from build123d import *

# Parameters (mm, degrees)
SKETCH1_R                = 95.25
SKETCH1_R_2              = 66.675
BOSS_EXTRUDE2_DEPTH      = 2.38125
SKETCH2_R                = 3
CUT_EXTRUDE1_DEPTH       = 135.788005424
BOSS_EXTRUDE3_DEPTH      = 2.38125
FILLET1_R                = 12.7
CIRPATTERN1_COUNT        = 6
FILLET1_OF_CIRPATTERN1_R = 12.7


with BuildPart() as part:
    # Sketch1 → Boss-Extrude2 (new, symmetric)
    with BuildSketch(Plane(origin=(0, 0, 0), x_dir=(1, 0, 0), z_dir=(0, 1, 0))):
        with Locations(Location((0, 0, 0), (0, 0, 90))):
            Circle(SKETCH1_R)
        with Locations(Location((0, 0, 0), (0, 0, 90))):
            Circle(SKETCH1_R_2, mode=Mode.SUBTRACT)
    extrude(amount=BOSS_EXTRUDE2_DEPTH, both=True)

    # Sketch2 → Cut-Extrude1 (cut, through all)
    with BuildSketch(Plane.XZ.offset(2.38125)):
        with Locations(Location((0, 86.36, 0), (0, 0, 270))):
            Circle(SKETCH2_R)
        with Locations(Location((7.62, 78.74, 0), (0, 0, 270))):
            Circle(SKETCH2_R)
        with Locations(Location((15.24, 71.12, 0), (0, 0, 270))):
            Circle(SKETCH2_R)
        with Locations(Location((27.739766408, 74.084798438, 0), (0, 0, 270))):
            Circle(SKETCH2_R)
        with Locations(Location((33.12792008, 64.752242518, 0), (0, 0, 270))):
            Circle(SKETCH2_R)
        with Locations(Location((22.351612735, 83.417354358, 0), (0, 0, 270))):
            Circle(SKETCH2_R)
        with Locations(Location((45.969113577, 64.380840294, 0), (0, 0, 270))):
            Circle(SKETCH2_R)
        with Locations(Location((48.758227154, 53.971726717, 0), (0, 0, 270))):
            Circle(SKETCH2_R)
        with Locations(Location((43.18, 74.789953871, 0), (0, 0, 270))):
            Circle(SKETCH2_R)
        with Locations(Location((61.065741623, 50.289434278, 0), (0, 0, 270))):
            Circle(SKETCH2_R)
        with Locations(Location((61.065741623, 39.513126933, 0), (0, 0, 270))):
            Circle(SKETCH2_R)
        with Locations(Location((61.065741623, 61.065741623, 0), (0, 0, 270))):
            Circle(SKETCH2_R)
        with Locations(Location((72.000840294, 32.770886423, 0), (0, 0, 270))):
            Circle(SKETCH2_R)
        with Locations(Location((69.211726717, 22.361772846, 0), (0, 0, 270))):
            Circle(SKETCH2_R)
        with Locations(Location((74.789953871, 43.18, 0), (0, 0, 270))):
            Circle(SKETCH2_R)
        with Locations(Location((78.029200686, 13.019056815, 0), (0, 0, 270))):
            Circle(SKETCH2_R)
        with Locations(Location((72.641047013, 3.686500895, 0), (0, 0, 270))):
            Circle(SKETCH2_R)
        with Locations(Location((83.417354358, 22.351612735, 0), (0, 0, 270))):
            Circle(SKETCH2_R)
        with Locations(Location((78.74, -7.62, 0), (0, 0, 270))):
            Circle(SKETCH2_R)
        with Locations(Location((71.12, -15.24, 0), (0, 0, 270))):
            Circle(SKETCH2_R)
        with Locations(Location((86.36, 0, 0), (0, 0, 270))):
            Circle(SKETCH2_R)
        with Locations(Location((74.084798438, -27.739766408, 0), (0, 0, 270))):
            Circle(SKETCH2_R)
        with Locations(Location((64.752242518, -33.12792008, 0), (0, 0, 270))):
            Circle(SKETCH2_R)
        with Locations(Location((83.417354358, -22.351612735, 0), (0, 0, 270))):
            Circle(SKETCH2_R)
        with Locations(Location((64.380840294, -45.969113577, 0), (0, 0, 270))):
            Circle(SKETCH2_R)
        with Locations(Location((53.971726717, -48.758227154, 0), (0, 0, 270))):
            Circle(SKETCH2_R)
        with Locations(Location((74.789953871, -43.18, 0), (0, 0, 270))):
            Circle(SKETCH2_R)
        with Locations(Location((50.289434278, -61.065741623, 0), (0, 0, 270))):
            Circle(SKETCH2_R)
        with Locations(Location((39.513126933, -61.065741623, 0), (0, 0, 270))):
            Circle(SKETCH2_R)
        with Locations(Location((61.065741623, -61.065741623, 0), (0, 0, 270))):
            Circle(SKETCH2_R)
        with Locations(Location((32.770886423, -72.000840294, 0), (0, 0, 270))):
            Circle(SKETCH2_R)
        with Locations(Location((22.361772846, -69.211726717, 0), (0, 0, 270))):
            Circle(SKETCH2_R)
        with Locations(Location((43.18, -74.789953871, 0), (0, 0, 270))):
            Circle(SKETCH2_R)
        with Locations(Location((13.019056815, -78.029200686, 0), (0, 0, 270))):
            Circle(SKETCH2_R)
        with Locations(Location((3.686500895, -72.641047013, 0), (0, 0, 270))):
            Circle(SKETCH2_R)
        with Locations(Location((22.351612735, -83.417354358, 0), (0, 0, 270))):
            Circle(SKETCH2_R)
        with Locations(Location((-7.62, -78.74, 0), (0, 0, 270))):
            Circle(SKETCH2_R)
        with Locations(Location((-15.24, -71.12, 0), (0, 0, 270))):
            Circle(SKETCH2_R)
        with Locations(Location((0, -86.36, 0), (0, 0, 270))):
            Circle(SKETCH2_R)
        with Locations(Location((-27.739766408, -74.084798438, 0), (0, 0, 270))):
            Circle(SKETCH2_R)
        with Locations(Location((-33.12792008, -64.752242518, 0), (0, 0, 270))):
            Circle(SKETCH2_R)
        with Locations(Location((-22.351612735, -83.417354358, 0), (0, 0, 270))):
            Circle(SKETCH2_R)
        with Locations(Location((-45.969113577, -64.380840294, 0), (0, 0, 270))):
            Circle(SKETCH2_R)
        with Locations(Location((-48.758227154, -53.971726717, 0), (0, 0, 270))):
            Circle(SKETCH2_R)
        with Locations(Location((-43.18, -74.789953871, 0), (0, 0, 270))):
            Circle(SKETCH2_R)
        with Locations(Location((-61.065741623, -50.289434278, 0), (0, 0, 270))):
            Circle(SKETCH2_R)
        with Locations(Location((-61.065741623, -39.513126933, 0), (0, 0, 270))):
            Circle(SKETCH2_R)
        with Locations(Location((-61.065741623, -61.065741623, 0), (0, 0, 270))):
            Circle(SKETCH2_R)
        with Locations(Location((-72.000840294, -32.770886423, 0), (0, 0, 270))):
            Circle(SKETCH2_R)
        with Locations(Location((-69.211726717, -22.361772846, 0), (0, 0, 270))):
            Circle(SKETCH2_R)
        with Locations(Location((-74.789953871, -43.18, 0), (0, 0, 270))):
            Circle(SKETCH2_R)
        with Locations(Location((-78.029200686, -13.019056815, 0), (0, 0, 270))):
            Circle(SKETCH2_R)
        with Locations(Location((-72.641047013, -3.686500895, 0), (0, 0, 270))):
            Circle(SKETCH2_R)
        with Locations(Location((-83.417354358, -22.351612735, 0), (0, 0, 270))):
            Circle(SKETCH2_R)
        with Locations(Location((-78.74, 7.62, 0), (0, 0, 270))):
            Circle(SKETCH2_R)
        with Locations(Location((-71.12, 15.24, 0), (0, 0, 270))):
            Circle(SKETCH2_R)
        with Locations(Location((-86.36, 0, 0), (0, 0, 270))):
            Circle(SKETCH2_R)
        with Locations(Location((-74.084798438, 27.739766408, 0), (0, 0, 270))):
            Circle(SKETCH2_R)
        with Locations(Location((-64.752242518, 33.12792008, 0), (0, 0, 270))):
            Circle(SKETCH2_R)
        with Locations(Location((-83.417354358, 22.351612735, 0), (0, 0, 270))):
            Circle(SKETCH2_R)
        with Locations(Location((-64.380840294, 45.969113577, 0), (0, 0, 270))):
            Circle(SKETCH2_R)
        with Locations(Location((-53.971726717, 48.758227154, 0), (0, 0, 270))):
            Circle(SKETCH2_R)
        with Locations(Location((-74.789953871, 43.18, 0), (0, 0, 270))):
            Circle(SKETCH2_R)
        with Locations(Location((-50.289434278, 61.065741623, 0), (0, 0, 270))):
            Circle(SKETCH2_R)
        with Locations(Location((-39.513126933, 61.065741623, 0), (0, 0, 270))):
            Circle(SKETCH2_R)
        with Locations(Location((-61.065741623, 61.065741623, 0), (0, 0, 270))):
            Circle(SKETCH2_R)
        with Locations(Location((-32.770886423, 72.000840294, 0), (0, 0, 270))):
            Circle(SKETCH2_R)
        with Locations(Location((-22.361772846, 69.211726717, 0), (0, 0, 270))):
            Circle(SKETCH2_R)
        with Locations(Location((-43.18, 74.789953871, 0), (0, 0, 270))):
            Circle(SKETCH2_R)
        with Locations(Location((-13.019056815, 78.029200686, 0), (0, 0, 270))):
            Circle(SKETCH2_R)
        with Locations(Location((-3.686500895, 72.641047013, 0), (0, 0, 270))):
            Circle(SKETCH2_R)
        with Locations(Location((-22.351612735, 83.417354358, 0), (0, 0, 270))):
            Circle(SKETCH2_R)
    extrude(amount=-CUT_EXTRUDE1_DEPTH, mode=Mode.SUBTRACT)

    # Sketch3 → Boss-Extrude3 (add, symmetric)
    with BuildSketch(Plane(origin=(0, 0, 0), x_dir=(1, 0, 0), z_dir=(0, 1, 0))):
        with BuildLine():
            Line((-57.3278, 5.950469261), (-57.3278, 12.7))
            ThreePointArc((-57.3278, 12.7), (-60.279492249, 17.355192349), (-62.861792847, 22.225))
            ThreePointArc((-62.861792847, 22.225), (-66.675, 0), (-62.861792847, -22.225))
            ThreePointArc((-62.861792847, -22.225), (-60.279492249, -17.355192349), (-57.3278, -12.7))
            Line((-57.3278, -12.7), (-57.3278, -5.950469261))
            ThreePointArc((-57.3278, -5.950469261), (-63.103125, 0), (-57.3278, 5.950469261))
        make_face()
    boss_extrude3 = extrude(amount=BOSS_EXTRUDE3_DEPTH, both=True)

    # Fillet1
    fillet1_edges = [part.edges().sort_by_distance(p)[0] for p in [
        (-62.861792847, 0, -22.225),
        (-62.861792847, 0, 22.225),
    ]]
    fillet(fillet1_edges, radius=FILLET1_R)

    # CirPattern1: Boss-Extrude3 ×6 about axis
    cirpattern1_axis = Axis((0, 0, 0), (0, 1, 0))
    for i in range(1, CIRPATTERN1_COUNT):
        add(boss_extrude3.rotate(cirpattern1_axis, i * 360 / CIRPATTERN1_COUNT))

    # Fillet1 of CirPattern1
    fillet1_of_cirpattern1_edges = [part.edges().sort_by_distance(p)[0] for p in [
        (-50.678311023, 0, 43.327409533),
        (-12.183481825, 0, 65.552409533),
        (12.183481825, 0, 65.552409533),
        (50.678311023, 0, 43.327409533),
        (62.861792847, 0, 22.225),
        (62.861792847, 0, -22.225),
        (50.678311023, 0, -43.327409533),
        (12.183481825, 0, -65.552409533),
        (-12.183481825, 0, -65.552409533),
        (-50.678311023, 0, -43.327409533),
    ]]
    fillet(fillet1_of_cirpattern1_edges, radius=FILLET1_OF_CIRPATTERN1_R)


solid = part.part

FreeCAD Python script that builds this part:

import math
import FreeCAD as App
import Part
import Sketcher

V = App.Vector
Q = App.Units.Quantity


def edges_at(feature, points):
    """Names of the edges that pass closest to the given points."""
    edges = feature.Shape.Edges
    near = lambda p: min(range(len(edges)), key=lambda i: edges[i].distToShape(Part.Vertex(*p))[0])
    return sorted({f"Edge{near(p) + 1}" for p in points})

doc = App.newDocument("Part")
body = doc.addObject("PartDesign::Body", "Body")

sketch1 = doc.addObject("Sketcher::SketchObject", "Sketch")
body.addObject(sketch1)
sketch1.AttachmentSupport = (doc.XZ_Plane, [""])
sketch1.MapMode = "FlatFace"
sketch1.addGeometry([
    Part.Circle(V(0, 0, 0), V(0, 0, 1), 95.25),
    Part.Circle(V(0, 0, 0), V(0, 0, 1), 66.675),
], False)
sketch1.addConstraint([
    Sketcher.Constraint("Coincident", 0, 3, -1, 1),
    Sketcher.Constraint("Coincident", 1, 3, -1, 1),
    Sketcher.Constraint("Diameter", 0, Q("7.5 in")),
    Sketcher.Constraint("Diameter", 1, Q("5.25 in")),
])
pad1 = doc.addObject("PartDesign::Pad", "Pad")
body.addObject(pad1)
pad1.Profile = sketch1
pad1.Length = Q("0.1875 in")
pad1.Midplane = True

sketch2 = doc.addObject("Sketcher::SketchObject", "Sketch001")
body.addObject(sketch2)
sketch2.AttachmentSupport = (doc.XZ_Plane, [""])
sketch2.MapMode = "FlatFace"
sketch2.AttachmentOffset = App.Placement(V(0, 0, 0.09375 * 25.4), App.Rotation())
sketch2.addGeometry([
    Part.Circle(V(0, 86.36, 0), V(0, 0, 1), 3),
    Part.Circle(V(7.62, 78.74, 0), V(0, 0, 1), 3),
    Part.Circle(V(15.24, 71.12, 0), V(0, 0, 1), 3),
    Part.Circle(V(27.739766, 74.084798, 0), V(0, 0, 1), 3),
    Part.Circle(V(33.12792, 64.752243, 0), V(0, 0, 1), 3),
    Part.Circle(V(22.351613, 83.417354, 0), V(0, 0, 1), 3),
    Part.Circle(V(45.969114, 64.38084, 0), V(0, 0, 1), 3),
    Part.Circle(V(48.758227, 53.971727, 0), V(0, 0, 1), 3),
    Part.Circle(V(43.18, 74.789954, 0), V(0, 0, 1), 3),
    Part.Circle(V(61.065742, 50.289434, 0), V(0, 0, 1), 3),
    Part.Circle(V(61.065742, 39.513127, 0), V(0, 0, 1), 3),
    Part.Circle(V(61.065742, 61.065742, 0), V(0, 0, 1), 3),
    Part.Circle(V(72.00084, 32.770886, 0), V(0, 0, 1), 3),
    Part.Circle(V(69.211727, 22.361773, 0), V(0, 0, 1), 3),
    Part.Circle(V(74.789954, 43.18, 0), V(0, 0, 1), 3),
    Part.Circle(V(78.029201, 13.019057, 0), V(0, 0, 1), 3),
    Part.Circle(V(72.641047, 3.686501, 0), V(0, 0, 1), 3),
    Part.Circle(V(83.417354, 22.351613, 0), V(0, 0, 1), 3),
    Part.Circle(V(78.74, -7.62, 0), V(0, 0, 1), 3),
    Part.Circle(V(71.12, -15.24, 0), V(0, 0, 1), 3),
    Part.Circle(V(86.36, 0, 0), V(0, 0, 1), 3),
    Part.Circle(V(74.084798, -27.739766, 0), V(0, 0, 1), 3),
    Part.Circle(V(64.752243, -33.12792, 0), V(0, 0, 1), 3),
    Part.Circle(V(83.417354, -22.351613, 0), V(0, 0, 1), 3),
    Part.Circle(V(64.38084, -45.969114, 0), V(0, 0, 1), 3),
    Part.Circle(V(53.971727, -48.758227, 0), V(0, 0, 1), 3),
    Part.Circle(V(74.789954, -43.18, 0), V(0, 0, 1), 3),
    Part.Circle(V(50.289434, -61.065742, 0), V(0, 0, 1), 3),
    Part.Circle(V(39.513127, -61.065742, 0), V(0, 0, 1), 3),
    Part.Circle(V(61.065742, -61.065742, 0), V(0, 0, 1), 3),
    Part.Circle(V(32.770886, -72.00084, 0), V(0, 0, 1), 3),
    Part.Circle(V(22.361773, -69.211727, 0), V(0, 0, 1), 3),
    Part.Circle(V(43.18, -74.789954, 0), V(0, 0, 1), 3),
    Part.Circle(V(13.019057, -78.029201, 0), V(0, 0, 1), 3),
    Part.Circle(V(3.686501, -72.641047, 0), V(0, 0, 1), 3),
    Part.Circle(V(22.351613, -83.417354, 0), V(0, 0, 1), 3),
    Part.Circle(V(-7.62, -78.74, 0), V(0, 0, 1), 3),
    Part.Circle(V(-15.24, -71.12, 0), V(0, 0, 1), 3),
    Part.Circle(V(0, -86.36, 0), V(0, 0, 1), 3),
    Part.Circle(V(-27.739766, -74.084798, 0), V(0, 0, 1), 3),
    Part.Circle(V(-33.12792, -64.752243, 0), V(0, 0, 1), 3),
    Part.Circle(V(-22.351613, -83.417354, 0), V(0, 0, 1), 3),
    Part.Circle(V(-45.969114, -64.38084, 0), V(0, 0, 1), 3),
    Part.Circle(V(-48.758227, -53.971727, 0), V(0, 0, 1), 3),
    Part.Circle(V(-43.18, -74.789954, 0), V(0, 0, 1), 3),
    Part.Circle(V(-61.065742, -50.289434, 0), V(0, 0, 1), 3),
    Part.Circle(V(-61.065742, -39.513127, 0), V(0, 0, 1), 3),
    Part.Circle(V(-61.065742, -61.065742, 0), V(0, 0, 1), 3),
    Part.Circle(V(-72.00084, -32.770886, 0), V(0, 0, 1), 3),
    Part.Circle(V(-69.211727, -22.361773, 0), V(0, 0, 1), 3),
    Part.Circle(V(-74.789954, -43.18, 0), V(0, 0, 1), 3),
    Part.Circle(V(-78.029201, -13.019057, 0), V(0, 0, 1), 3),
    Part.Circle(V(-72.641047, -3.686501, 0), V(0, 0, 1), 3),
    Part.Circle(V(-83.417354, -22.351613, 0), V(0, 0, 1), 3),
    Part.Circle(V(-78.74, 7.62, 0), V(0, 0, 1), 3),
    Part.Circle(V(-71.12, 15.24, 0), V(0, 0, 1), 3),
    Part.Circle(V(-86.36, 0, 0), V(0, 0, 1), 3),
    Part.Circle(V(-74.084798, 27.739766, 0), V(0, 0, 1), 3),
    Part.Circle(V(-64.752243, 33.12792, 0), V(0, 0, 1), 3),
    Part.Circle(V(-83.417354, 22.351613, 0), V(0, 0, 1), 3),
    Part.Circle(V(-64.38084, 45.969114, 0), V(0, 0, 1), 3),
    Part.Circle(V(-53.971727, 48.758227, 0), V(0, 0, 1), 3),
    Part.Circle(V(-74.789954, 43.18, 0), V(0, 0, 1), 3),
    Part.Circle(V(-50.289434, 61.065742, 0), V(0, 0, 1), 3),
    Part.Circle(V(-39.513127, 61.065742, 0), V(0, 0, 1), 3),
    Part.Circle(V(-61.065742, 61.065742, 0), V(0, 0, 1), 3),
    Part.Circle(V(-32.770886, 72.00084, 0), V(0, 0, 1), 3),
    Part.Circle(V(-22.361773, 69.211727, 0), V(0, 0, 1), 3),
    Part.Circle(V(-43.18, 74.789954, 0), V(0, 0, 1), 3),
    Part.Circle(V(-13.019057, 78.029201, 0), V(0, 0, 1), 3),
    Part.Circle(V(-3.686501, 72.641047, 0), V(0, 0, 1), 3),
    Part.Circle(V(-22.351613, 83.417354, 0), V(0, 0, 1), 3),
], False)
sketch2.addConstraint([
    Sketcher.Constraint("Equal", 0, 1),
    Sketcher.Constraint("Equal", 1, 2),
    Sketcher.Constraint("Equal", 2, 3),
    Sketcher.Constraint("Equal", 3, 4),
    Sketcher.Constraint("Equal", 4, 5),
    Sketcher.Constraint("Equal", 5, 6),
    Sketcher.Constraint("Equal", 6, 7),
    Sketcher.Constraint("Equal", 7, 8),
    Sketcher.Constraint("Equal", 8, 9),
    Sketcher.Constraint("Equal", 9, 10),
    Sketcher.Constraint("Equal", 10, 11),
    Sketcher.Constraint("Equal", 11, 12),
    Sketcher.Constraint("Equal", 12, 13),
    Sketcher.Constraint("Equal", 13, 14),
    Sketcher.Constraint("Equal", 14, 15),
    Sketcher.Constraint("Equal", 15, 16),
    Sketcher.Constraint("Equal", 16, 17),
    Sketcher.Constraint("Equal", 17, 18),
    Sketcher.Constraint("Equal", 18, 19),
    Sketcher.Constraint("Equal", 19, 20),
    Sketcher.Constraint("Equal", 20, 21),
    Sketcher.Constraint("Equal", 21, 22),
    Sketcher.Constraint("Equal", 22, 23),
    Sketcher.Constraint("Equal", 23, 24),
    Sketcher.Constraint("Equal", 24, 25),
    Sketcher.Constraint("Equal", 25, 26),
    Sketcher.Constraint("Equal", 26, 27),
    Sketcher.Constraint("Equal", 27, 28),
    Sketcher.Constraint("Equal", 28, 29),
    Sketcher.Constraint("Equal", 29, 30),
    Sketcher.Constraint("Equal", 30, 31),
    Sketcher.Constraint("Equal", 31, 32),
    Sketcher.Constraint("Equal", 32, 33),
    Sketcher.Constraint("Equal", 33, 34),
    Sketcher.Constraint("Equal", 34, 35),
    Sketcher.Constraint("Equal", 35, 36),
    Sketcher.Constraint("Equal", 36, 37),
    Sketcher.Constraint("Equal", 37, 38),
    Sketcher.Constraint("Equal", 38, 39),
    Sketcher.Constraint("Equal", 39, 40),
    Sketcher.Constraint("Equal", 40, 41),
    Sketcher.Constraint("Equal", 41, 42),
    Sketcher.Constraint("Equal", 42, 43),
    Sketcher.Constraint("Equal", 43, 44),
    Sketcher.Constraint("Equal", 44, 45),
    Sketcher.Constraint("Equal", 45, 46),
    Sketcher.Constraint("Equal", 46, 47),
    Sketcher.Constraint("Equal", 47, 48),
    Sketcher.Constraint("Equal", 48, 49),
    Sketcher.Constraint("Equal", 49, 50),
    Sketcher.Constraint("Equal", 50, 51),
    Sketcher.Constraint("Equal", 51, 52),
    Sketcher.Constraint("Equal", 52, 53),
    Sketcher.Constraint("Equal", 53, 54),
    Sketcher.Constraint("Equal", 54, 55),
    Sketcher.Constraint("Equal", 55, 56),
    Sketcher.Constraint("Equal", 56, 57),
    Sketcher.Constraint("Equal", 57, 58),
    Sketcher.Constraint("Equal", 58, 59),
    Sketcher.Constraint("Equal", 59, 60),
    Sketcher.Constraint("Equal", 60, 61),
    Sketcher.Constraint("Equal", 61, 62),
    Sketcher.Constraint("Equal", 62, 63),
    Sketcher.Constraint("Equal", 63, 64),
    Sketcher.Constraint("Equal", 64, 65),
    Sketcher.Constraint("Equal", 65, 66),
    Sketcher.Constraint("Equal", 66, 67),
    Sketcher.Constraint("Equal", 67, 68),
    Sketcher.Constraint("Equal", 68, 69),
    Sketcher.Constraint("Equal", 69, 70),
    Sketcher.Constraint("Equal", 70, 71),
    Sketcher.Constraint("Symmetric", 1, 3, 36, 3, -1, 1),
    Sketcher.Constraint("Symmetric", 2, 3, 37, 3, -1, 1),
    Sketcher.Constraint("Symmetric", 0, 3, 38, 3, -1, 1),
    Sketcher.Constraint("Symmetric", 3, 3, 39, 3, -1, 1),
    Sketcher.Constraint("Symmetric", 4, 3, 40, 3, -1, 1),
    Sketcher.Constraint("Symmetric", 5, 3, 41, 3, -1, 1),
    Sketcher.Constraint("Symmetric", 6, 3, 42, 3, -1, 1),
    Sketcher.Constraint("Symmetric", 7, 3, 43, 3, -1, 1),
    Sketcher.Constraint("Symmetric", 8, 3, 44, 3, -1, 1),
    Sketcher.Constraint("Symmetric", 9, 3, 45, 3, -1, 1),
    Sketcher.Constraint("Symmetric", 10, 3, 46, 3, -1, 1),
    Sketcher.Constraint("Symmetric", 11, 3, 47, 3, -1, 1),
    Sketcher.Constraint("Symmetric", 12, 3, 48, 3, -1, 1),
    Sketcher.Constraint("Symmetric", 13, 3, 49, 3, -1, 1),
    Sketcher.Constraint("Symmetric", 14, 3, 50, 3, -1, 1),
    Sketcher.Constraint("Symmetric", 15, 3, 51, 3, -1, 1),
    Sketcher.Constraint("Symmetric", 16, 3, 52, 3, -1, 1),
    Sketcher.Constraint("Symmetric", 17, 3, 53, 3, -1, 1),
    Sketcher.Constraint("Symmetric", 18, 3, 54, 3, -1, 1),
    Sketcher.Constraint("Symmetric", 19, 3, 55, 3, -1, 1),
    Sketcher.Constraint("Symmetric", 20, 3, 56, 3, -1, 1),
    Sketcher.Constraint("Symmetric", 21, 3, 57, 3, -1, 1),
    Sketcher.Constraint("Symmetric", 22, 3, 58, 3, -1, 1),
    Sketcher.Constraint("Symmetric", 23, 3, 59, 3, -1, 1),
    Sketcher.Constraint("Symmetric", 24, 3, 60, 3, -1, 1),
    Sketcher.Constraint("Symmetric", 25, 3, 61, 3, -1, 1),
    Sketcher.Constraint("Symmetric", 26, 3, 62, 3, -1, 1),
    Sketcher.Constraint("Symmetric", 27, 3, 63, 3, -1, 1),
    Sketcher.Constraint("Symmetric", 28, 3, 64, 3, -1, 1),
    Sketcher.Constraint("Symmetric", 29, 3, 65, 3, -1, 1),
    Sketcher.Constraint("Symmetric", 30, 3, 66, 3, -1, 1),
    Sketcher.Constraint("Symmetric", 31, 3, 67, 3, -1, 1),
    Sketcher.Constraint("Symmetric", 32, 3, 68, 3, -1, 1),
    Sketcher.Constraint("Symmetric", 33, 3, 69, 3, -1, 1),
    Sketcher.Constraint("Symmetric", 34, 3, 70, 3, -1, 1),
    Sketcher.Constraint("Symmetric", 35, 3, 71, 3, -1, 1),
    Sketcher.Constraint("Symmetric", 35, 3, 41, 3, -2),
    Sketcher.Constraint("Symmetric", 32, 3, 44, 3, -2),
    Sketcher.Constraint("Symmetric", 29, 3, 47, 3, -2),
    Sketcher.Constraint("Symmetric", 26, 3, 50, 3, -2),
    Sketcher.Constraint("Symmetric", 23, 3, 53, 3, -2),
    Sketcher.Constraint("PointOnObject", 0, 3, -2),
    Sketcher.Constraint("PointOnObject", 20, 3, -1),
    Sketcher.Constraint("Horizontal", 27, 3, 28, 3),
    Sketcher.Constraint("Horizontal", 28, 3, 29, 3),
    Sketcher.Constraint("Vertical", 9, 3, 10, 3),
    Sketcher.Constraint("Vertical", 10, 3, 11, 3),
    Sketcher.Constraint("DistanceY", -1, 1, 0, 3, Q("3.4 in")),
    Sketcher.Constraint("DistanceX", -1, 1, 1, 3, Q("0.3 in")),
    Sketcher.Constraint("DistanceY", -1, 1, 1, 3, Q("3.1 in")),
    Sketcher.Constraint("DistanceX", -1, 1, 2, 3, Q("0.6 in")),
    Sketcher.Constraint("DistanceY", -1, 1, 2, 3, Q("2.8 in")),
    Sketcher.Constraint("DistanceX", -1, 1, 8, 3, Q("1.7 in")),
    Sketcher.Constraint("DistanceY", -1, 1, 14, 3, Q("1.7 in")),
    Sketcher.Constraint("DistanceX", -1, 1, 18, 3, Q("3.1 in")),
    Sketcher.Constraint("DistanceY", 18, 3, -1, 1, Q("0.3 in")),
    Sketcher.Constraint("DistanceX", -1, 1, 19, 3, Q("2.8 in")),
    Sketcher.Constraint("DistanceY", 19, 3, -1, 1, Q("0.6 in")),
    Sketcher.Constraint("DistanceX", -1, 1, 20, 3, Q("3.4 in")),
    Sketcher.Constraint("Diameter", 0, Q("6 mm")),
    Sketcher.Constraint("DistanceY", -1, 1, 3, 3, Q("74.084798 mm")),
    Sketcher.Constraint("DistanceX", -1, 1, 15, 3, Q("78.029201 mm")),
    Sketcher.Constraint("DistanceY", -1, 1, 16, 3, Q("3.686501 mm")),
    Sketcher.Constraint("DistanceX", -1, 1, 21, 3, Q("74.084798 mm")),
    Sketcher.Constraint("DistanceY", 33, 3, -1, 1, Q("78.029201 mm")),
    Sketcher.Constraint("DistanceX", -1, 1, 34, 3, Q("3.686501 mm")),
    Sketcher.Constraint("DistanceX", -1, 1, 4, 3, Q("33.12792 mm")),
    Sketcher.Constraint("DistanceY", -1, 1, 6, 3, Q("64.38084 mm")),
    Sketcher.Constraint("DistanceX", -1, 1, 9, 3, Q("61.065742 mm")),
    Sketcher.Constraint("DistanceY", -1, 1, 11, 3, Q("61.065742 mm")),
    Sketcher.Constraint("DistanceX", -1, 1, 12, 3, Q("72.00084 mm")),
    Sketcher.Constraint("DistanceY", 22, 3, -1, 1, Q("33.12792 mm")),
    Sketcher.Constraint("DistanceX", -1, 1, 24, 3, Q("64.38084 mm")),
    Sketcher.Constraint("DistanceY", 30, 3, -1, 1, Q("72.00084 mm")),
    Sketcher.Constraint("DistanceX", -1, 1, 3, 3, Q("27.739766 mm")),
    Sketcher.Constraint("DistanceY", -1, 1, 4, 3, Q("64.752243 mm")),
    Sketcher.Constraint("DistanceX", -1, 1, 5, 3, Q("22.351613 mm")),
    Sketcher.Constraint("DistanceY", -1, 1, 5, 3, Q("83.417354 mm")),
    Sketcher.Constraint("DistanceX", -1, 1, 6, 3, Q("45.969114 mm")),
    Sketcher.Constraint("DistanceX", -1, 1, 7, 3, Q("48.758227 mm")),
    Sketcher.Constraint("DistanceY", -1, 1, 7, 3, Q("53.971727 mm")),
    Sketcher.Constraint("DistanceY", -1, 1, 8, 3, Q("74.789954 mm")),
    Sketcher.Constraint("DistanceY", -1, 1, 9, 3, Q("50.289434 mm")),
    Sketcher.Constraint("DistanceY", -1, 1, 10, 3, Q("39.513127 mm")),
    Sketcher.Constraint("DistanceY", -1, 1, 12, 3, Q("32.770886 mm")),
    Sketcher.Constraint("DistanceX", -1, 1, 13, 3, Q("69.211727 mm")),
    Sketcher.Constraint("DistanceY", -1, 1, 13, 3, Q("22.361773 mm")),
    Sketcher.Constraint("DistanceX", -1, 1, 14, 3, Q("74.789954 mm")),
    Sketcher.Constraint("DistanceY", -1, 1, 15, 3, Q("13.019057 mm")),
    Sketcher.Constraint("DistanceX", -1, 1, 16, 3, Q("72.641047 mm")),
    Sketcher.Constraint("DistanceX", -1, 1, 17, 3, Q("83.417354 mm")),
    Sketcher.Constraint("DistanceY", -1, 1, 17, 3, Q("22.351613 mm")),
    Sketcher.Constraint("DistanceY", 21, 3, -1, 1, Q("27.739766 mm")),
    Sketcher.Constraint("DistanceX", -1, 1, 22, 3, Q("64.752243 mm")),
    Sketcher.Constraint("DistanceY", 24, 3, -1, 1, Q("45.969114 mm")),
    Sketcher.Constraint("DistanceX", -1, 1, 25, 3, Q("53.971727 mm")),
    Sketcher.Constraint("DistanceY", 25, 3, -1, 1, Q("48.758227 mm")),
    Sketcher.Constraint("DistanceX", -1, 1, 27, 3, Q("50.289434 mm")),
    Sketcher.Constraint("DistanceX", -1, 1, 28, 3, Q("39.513127 mm")),
    Sketcher.Constraint("DistanceX", -1, 1, 30, 3, Q("32.770886 mm")),
    Sketcher.Constraint("DistanceX", -1, 1, 31, 3, Q("22.361773 mm")),
    Sketcher.Constraint("DistanceY", 31, 3, -1, 1, Q("69.211727 mm")),
    Sketcher.Constraint("DistanceX", -1, 1, 33, 3, Q("13.019057 mm")),
    Sketcher.Constraint("DistanceY", 34, 3, -1, 1, Q("72.641047 mm")),
])
pocket1 = doc.addObject("PartDesign::Pocket", "Pocket")
body.addObject(pocket1)
pocket1.Profile = sketch2
pocket1.Type = "ThroughAll"

sketch3 = doc.addObject("Sketcher::SketchObject", "Sketch002")
body.addObject(sketch3)
sketch3.AttachmentSupport = (doc.XZ_Plane, [""])
sketch3.MapMode = "FlatFace"
sketch3.addGeometry([
    Part.LineSegment(V(-57.3278, -5.950469, 0), V(-57.3278, -12.7, 0)),
    Part.ArcOfCircle(Part.Circle(V(1.21491, -53.083233, 0), V(0, 0, 1), 71.12), math.radians(145.401776), math.radians(154.285338)),
    Part.ArcOfCircle(Part.Circle(V(0, 0, 0), V(0, 0, 1), 66.675), math.radians(160.528779), math.radians(199.471221)),
    Part.ArcOfCircle(Part.Circle(V(1.21491, 53.083233, 0), V(0, 0, 1), 71.12), math.radians(-154.285338), math.radians(-145.401776)),
    Part.LineSegment(V(-57.3278, 12.7, 0), V(-57.3278, 5.950469, 0)),
    Part.ArcOfCircle(Part.Circle(V(-57.15, 0, 0), V(0, 0, 1), 5.953125), math.radians(91.711488), math.radians(268.288512)),
], False)
sketch3.addConstraint([
    Sketcher.Constraint("Coincident", 0, 2, 1, 1),
    Sketcher.Constraint("Coincident", 1, 2, 2, 2),
    Sketcher.Constraint("Coincident", 2, 1, 3, 1),
    Sketcher.Constraint("Coincident", 3, 2, 4, 1),
    Sketcher.Constraint("Coincident", 4, 2, 5, 1),
    Sketcher.Constraint("Coincident", 5, 2, 0, 1),
    Sketcher.Constraint("Vertical", 0),
    Sketcher.Constraint("Vertical", 4),
    Sketcher.Constraint("Coincident", 2, 3, -1, 1),
    Sketcher.Constraint("Equal", 1, 3),
    Sketcher.Constraint("Symmetric", 1, 3, 3, 3, -1),
    Sketcher.Constraint("Symmetric", 4, 2, 5, 2, -1),
    Sketcher.Constraint("Radius", 1, Q("2.8 in")),
    Sketcher.Constraint("Radius", 2, Q("2.625 in")),
    Sketcher.Constraint("Radius", 5, Q("0.234375 in")),
    Sketcher.Constraint("DistanceY", 0, 2, 3, 2, Q("1 in")),
    Sketcher.Constraint("DistanceX", 5, 3, -1, 1, Q("2.25 in")),
    Sketcher.Constraint("DistanceY", 1, 2, 2, 1, Q("1.75 in")),
    Sketcher.Constraint("DistanceX", 0, 2, -1, 1, Q("2.257 in")),
])
pad2 = doc.addObject("PartDesign::Pad", "Pad001")
body.addObject(pad2)
pad2.Profile = sketch3
pad2.Length = Q("0.1875 in")
pad2.Midplane = True
doc.recompute()

fillet = doc.addObject("PartDesign::Fillet", "Fillet")
body.addObject(fillet)
fillet.Base = (pad2, edges_at(pad2, [(-62.862, 0, -22.225), (-62.862, 0, 22.225)]))
fillet.Radius = Q("0.5 in")
doc.recompute()

polarpattern = doc.addObject("PartDesign::PolarPattern", "PolarPattern")
body.addObject(polarpattern)
polarpattern.Originals = [pad2]
polarpattern.Axis = (doc.Y_Axis, [""])
polarpattern.Angle = 360
polarpattern.Occurrences = 6
body.Tip = polarpattern
doc.recompute()

fillet2 = doc.addObject("PartDesign::Fillet", "Fillet001")
body.addObject(fillet2)
fillet2.Base = (polarpattern, edges_at(polarpattern, [
    (-50.678, 0, 43.327),
    (-12.183, 0, 65.552),
    (12.183, 0, 65.552),
    (50.678, 0, 43.327),
    (62.862, 0, 22.225),
    (62.862, 0, -22.225),
    (50.678, 0, -43.327),
    (12.183, 0, -65.552),
    (-12.183, 0, -65.552),
    (-50.678, 0, -43.327),
]))
fillet2.Radius = Q("0.5 in")

doc.recompute()
